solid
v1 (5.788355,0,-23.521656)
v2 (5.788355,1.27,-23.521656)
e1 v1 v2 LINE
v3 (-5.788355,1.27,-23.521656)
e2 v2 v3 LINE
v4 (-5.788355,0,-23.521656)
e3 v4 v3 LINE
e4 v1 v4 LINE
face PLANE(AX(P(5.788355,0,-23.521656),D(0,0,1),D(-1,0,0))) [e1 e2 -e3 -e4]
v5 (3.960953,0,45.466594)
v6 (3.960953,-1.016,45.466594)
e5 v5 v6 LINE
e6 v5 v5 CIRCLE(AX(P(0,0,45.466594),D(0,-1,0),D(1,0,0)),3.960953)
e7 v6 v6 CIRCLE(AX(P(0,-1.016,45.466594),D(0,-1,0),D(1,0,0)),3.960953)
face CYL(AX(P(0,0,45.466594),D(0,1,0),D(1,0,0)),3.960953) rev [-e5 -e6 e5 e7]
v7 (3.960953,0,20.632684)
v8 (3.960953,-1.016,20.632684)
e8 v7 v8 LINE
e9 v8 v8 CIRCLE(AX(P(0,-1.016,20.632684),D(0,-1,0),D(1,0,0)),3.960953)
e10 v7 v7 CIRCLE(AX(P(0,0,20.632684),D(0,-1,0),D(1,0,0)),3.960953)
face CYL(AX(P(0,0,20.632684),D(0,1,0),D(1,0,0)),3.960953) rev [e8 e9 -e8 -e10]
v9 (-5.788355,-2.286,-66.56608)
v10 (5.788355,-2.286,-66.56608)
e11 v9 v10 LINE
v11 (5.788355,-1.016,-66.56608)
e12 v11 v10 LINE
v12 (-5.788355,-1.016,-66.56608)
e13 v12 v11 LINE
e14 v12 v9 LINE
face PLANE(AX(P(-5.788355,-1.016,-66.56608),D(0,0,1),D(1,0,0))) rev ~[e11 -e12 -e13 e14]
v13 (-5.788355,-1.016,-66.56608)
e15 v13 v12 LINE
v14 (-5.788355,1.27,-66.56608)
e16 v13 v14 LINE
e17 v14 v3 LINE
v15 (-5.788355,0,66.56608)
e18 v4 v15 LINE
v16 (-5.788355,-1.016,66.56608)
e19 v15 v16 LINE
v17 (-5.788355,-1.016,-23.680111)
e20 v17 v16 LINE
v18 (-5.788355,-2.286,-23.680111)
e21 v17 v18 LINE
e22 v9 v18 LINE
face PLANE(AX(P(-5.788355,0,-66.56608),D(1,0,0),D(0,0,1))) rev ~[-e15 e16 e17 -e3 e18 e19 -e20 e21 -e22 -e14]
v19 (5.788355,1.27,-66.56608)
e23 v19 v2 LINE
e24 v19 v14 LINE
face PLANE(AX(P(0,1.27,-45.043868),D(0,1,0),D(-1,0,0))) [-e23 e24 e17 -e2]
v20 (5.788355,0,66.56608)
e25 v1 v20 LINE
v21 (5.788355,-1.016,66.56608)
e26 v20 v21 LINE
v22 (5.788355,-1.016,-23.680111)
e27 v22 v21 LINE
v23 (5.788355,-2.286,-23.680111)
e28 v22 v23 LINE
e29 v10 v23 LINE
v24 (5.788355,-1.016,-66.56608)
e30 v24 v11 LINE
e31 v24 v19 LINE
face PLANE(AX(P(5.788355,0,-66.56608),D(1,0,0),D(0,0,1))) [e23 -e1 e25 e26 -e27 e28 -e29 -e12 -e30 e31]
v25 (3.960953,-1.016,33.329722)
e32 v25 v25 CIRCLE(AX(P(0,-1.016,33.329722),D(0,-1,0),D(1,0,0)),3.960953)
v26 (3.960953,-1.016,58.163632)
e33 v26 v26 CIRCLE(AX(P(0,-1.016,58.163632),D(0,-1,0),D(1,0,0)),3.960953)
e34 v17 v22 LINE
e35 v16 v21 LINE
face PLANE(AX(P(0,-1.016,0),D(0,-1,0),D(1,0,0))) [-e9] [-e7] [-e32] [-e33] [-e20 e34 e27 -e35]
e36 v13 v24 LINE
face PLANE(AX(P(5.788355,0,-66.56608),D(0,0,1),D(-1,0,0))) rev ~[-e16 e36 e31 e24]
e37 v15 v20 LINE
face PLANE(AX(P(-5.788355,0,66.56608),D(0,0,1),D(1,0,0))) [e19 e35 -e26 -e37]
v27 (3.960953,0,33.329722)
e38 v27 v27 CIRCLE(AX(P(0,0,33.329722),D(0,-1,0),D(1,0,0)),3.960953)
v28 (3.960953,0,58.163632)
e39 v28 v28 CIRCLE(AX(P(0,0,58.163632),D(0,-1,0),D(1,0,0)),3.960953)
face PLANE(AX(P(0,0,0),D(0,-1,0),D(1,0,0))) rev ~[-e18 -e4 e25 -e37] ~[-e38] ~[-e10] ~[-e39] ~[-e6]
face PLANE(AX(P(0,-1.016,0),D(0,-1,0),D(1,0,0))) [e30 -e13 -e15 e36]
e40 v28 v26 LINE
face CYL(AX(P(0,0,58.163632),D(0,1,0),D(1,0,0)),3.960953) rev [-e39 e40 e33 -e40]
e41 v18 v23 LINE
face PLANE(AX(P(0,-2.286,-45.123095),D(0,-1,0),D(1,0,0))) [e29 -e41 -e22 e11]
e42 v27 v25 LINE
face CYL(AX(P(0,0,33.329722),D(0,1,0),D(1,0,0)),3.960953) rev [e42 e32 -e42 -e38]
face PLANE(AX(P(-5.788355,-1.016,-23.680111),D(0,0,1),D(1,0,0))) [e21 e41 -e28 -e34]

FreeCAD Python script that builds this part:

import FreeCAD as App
import Part
import Sketcher
from FreeCAD import Vector
Q = App.Units.Quantity


def add_polygon(sketch, points):
    """Adds a closed chain of lines whose ends are joined by coincident constraints."""
    first, n = sketch.GeometryCount, len(points)
    for a, b in zip(points, points[1:] + points[:1]):
        sketch.addGeometry(Part.LineSegment(App.Vector(*a, 0), App.Vector(*b, 0)), False)
    for i in range(n):
        sketch.addConstraint(Sketcher.Constraint("Coincident", first + i, 2, first + (i + 1) % n, 1))

doc = App.newDocument("Part")
body = doc.addObject("PartDesign::Body", "Body")

# Sketch on XZ plane
sketch1 = body.newObject("Sketcher::SketchObject", "Sketch")
sketch1.AttachmentSupport = (doc.getObject("XZ_Plane"), [""])
sketch1.MapMode = "FlatFace"
add_polygon(sketch1, [(-5.8, 66.6), (-5.8, -66.6), (5.8, -66.6), (5.8, 66.6)])  # lines 0-3
sketch1.addGeometry(Part.Circle(Vector(0, 20.6, 0), Vector(0, 0, 1), 4), False)  # 4
sketch1.addGeometry(Part.Circle(Vector(0, 33.3, 0), Vector(0, 0, 1), 4), False)  # 5
sketch1.addGeometry(Part.Circle(Vector(0, 45.5, 0), Vector(0, 0, 1), 4), False)  # 6
sketch1.addGeometry(Part.Circle(Vector(0, 58.2, 0), Vector(0, 0, 1), 4), False)  # 7
sketch1.addConstraint([
    Sketcher.Constraint("Vertical", 0),
    Sketcher.Constraint("Horizontal", 1),
    Sketcher.Constraint("Vertical", 2),
    Sketcher.Constraint("Horizontal", 3),
    Sketcher.Constraint("Equal", 4, 5),
    Sketcher.Constraint("Equal", 5, 6),
    Sketcher.Constraint("Equal", 6, 7),
    Sketcher.Constraint("Symmetric", 0, 2, 2, 2, -1, 1),
    Sketcher.Constraint("PointOnObject", 4, 3, -2),
    Sketcher.Constraint("PointOnObject", 5, 3, -2),
    Sketcher.Constraint("PointOnObject", 6, 3, -2),
    Sketcher.Constraint("PointOnObject", 7, 3, -2),
    Sketcher.Constraint("Diameter", 4, Q("7.921906 mm")),
    Sketcher.Constraint("DistanceX", 1, 1, 1, 2, Q("11.57671 mm")),
    Sketcher.Constraint("DistanceY", 0, 2, 0, 1, Q("133.13216 mm")),
    Sketcher.Constraint("DistanceY", -1, 1, 5, 3, Q("33.329722 mm")),
    Sketcher.Constraint("DistanceY", 4, 3, 6, 3, Q("24.83391 mm")),
    Sketcher.Constraint("DistanceY", 5, 3, 7, 3, Q("24.83391 mm")),
    Sketcher.Constraint("DistanceY", -1, 1, 4, 3, Q("20.632684 mm")),
])
pad1 = body.newObject("PartDesign::Pad", "Pad")
pad1.Profile = sketch1
pad1.Length = Q("0.04 in")

# Sketch on XZ plane
sketch2 = body.newObject("Sketcher::SketchObject", "Sketch001")
sketch2.AttachmentSupport = (doc.getObject("XZ_Plane"), [""])
sketch2.MapMode = "FlatFace"
sketch2.AttachmentOffset = App.Placement(Vector(0, 0, 0.04 * 25.4), App.Rotation())
add_polygon(sketch2, [(-6, -24), (-6, -67), (6, -67), (6, -24)])  # lines 0-3
sketch2.addConstraint([
    Sketcher.Constraint("Vertical", 0),
    Sketcher.Constraint("Horizontal", 1),
    Sketcher.Constraint("Vertical", 2),
    Sketcher.Constraint("Horizontal", 3),
    Sketcher.Constraint("DistanceX", 1, 1, 1, 2, Q("11.57671 mm")),
    Sketcher.Constraint("DistanceY", 0, 2, 0, 1, Q("42.885969 mm")),
    Sketcher.Constraint("DistanceY", 0, 2, -1, 1, Q("66.56608 mm")),
    Sketcher.Constraint("DistanceX", 0, 2, -1, 1, Q("5.788355 mm")),
])
pad2 = body.newObject("PartDesign::Pad", "Pad001")
pad2.Profile = sketch2
pad2.Length = Q("0.05 in")

# Sketch on XZ plane
sketch3 = body.newObject("Sketcher::SketchObject", "Sketch002")
sketch3.AttachmentSupport = (doc.getObject("XZ_Plane"), [""])
sketch3.MapMode = "FlatFace"
add_polygon(sketch3, [(6, -24), (6, -67), (-6, -67), (-6, -24)])  # lines 0-3
sketch3.addConstraint([
    Sketcher.Constraint("Vertical", 0),
    Sketcher.Constraint("Horizontal", 1),
    Sketcher.Constraint("Vertical", 2),
    Sketcher.Constraint("Horizontal", 3),
    Sketcher.Constraint("DistanceX", 1, 2, 1, 1, Q("11.57671 mm")),
    Sketcher.Constraint("DistanceY", 0, 2, 0, 1, Q("43.044424 mm")),
    Sketcher.Constraint("DistanceY", 0, 2, -1, 1, Q("66.56608 mm")),
    Sketcher.Constraint("DistanceX", -1, 1, 0, 2, Q("5.788355 mm")),
])
pad3 = body.newObject("PartDesign::Pad", "Pad002")
pad3.Profile = sketch3
pad3.Length = Q("0.05 in")
pad3.Reversed = True

doc.recompute()
